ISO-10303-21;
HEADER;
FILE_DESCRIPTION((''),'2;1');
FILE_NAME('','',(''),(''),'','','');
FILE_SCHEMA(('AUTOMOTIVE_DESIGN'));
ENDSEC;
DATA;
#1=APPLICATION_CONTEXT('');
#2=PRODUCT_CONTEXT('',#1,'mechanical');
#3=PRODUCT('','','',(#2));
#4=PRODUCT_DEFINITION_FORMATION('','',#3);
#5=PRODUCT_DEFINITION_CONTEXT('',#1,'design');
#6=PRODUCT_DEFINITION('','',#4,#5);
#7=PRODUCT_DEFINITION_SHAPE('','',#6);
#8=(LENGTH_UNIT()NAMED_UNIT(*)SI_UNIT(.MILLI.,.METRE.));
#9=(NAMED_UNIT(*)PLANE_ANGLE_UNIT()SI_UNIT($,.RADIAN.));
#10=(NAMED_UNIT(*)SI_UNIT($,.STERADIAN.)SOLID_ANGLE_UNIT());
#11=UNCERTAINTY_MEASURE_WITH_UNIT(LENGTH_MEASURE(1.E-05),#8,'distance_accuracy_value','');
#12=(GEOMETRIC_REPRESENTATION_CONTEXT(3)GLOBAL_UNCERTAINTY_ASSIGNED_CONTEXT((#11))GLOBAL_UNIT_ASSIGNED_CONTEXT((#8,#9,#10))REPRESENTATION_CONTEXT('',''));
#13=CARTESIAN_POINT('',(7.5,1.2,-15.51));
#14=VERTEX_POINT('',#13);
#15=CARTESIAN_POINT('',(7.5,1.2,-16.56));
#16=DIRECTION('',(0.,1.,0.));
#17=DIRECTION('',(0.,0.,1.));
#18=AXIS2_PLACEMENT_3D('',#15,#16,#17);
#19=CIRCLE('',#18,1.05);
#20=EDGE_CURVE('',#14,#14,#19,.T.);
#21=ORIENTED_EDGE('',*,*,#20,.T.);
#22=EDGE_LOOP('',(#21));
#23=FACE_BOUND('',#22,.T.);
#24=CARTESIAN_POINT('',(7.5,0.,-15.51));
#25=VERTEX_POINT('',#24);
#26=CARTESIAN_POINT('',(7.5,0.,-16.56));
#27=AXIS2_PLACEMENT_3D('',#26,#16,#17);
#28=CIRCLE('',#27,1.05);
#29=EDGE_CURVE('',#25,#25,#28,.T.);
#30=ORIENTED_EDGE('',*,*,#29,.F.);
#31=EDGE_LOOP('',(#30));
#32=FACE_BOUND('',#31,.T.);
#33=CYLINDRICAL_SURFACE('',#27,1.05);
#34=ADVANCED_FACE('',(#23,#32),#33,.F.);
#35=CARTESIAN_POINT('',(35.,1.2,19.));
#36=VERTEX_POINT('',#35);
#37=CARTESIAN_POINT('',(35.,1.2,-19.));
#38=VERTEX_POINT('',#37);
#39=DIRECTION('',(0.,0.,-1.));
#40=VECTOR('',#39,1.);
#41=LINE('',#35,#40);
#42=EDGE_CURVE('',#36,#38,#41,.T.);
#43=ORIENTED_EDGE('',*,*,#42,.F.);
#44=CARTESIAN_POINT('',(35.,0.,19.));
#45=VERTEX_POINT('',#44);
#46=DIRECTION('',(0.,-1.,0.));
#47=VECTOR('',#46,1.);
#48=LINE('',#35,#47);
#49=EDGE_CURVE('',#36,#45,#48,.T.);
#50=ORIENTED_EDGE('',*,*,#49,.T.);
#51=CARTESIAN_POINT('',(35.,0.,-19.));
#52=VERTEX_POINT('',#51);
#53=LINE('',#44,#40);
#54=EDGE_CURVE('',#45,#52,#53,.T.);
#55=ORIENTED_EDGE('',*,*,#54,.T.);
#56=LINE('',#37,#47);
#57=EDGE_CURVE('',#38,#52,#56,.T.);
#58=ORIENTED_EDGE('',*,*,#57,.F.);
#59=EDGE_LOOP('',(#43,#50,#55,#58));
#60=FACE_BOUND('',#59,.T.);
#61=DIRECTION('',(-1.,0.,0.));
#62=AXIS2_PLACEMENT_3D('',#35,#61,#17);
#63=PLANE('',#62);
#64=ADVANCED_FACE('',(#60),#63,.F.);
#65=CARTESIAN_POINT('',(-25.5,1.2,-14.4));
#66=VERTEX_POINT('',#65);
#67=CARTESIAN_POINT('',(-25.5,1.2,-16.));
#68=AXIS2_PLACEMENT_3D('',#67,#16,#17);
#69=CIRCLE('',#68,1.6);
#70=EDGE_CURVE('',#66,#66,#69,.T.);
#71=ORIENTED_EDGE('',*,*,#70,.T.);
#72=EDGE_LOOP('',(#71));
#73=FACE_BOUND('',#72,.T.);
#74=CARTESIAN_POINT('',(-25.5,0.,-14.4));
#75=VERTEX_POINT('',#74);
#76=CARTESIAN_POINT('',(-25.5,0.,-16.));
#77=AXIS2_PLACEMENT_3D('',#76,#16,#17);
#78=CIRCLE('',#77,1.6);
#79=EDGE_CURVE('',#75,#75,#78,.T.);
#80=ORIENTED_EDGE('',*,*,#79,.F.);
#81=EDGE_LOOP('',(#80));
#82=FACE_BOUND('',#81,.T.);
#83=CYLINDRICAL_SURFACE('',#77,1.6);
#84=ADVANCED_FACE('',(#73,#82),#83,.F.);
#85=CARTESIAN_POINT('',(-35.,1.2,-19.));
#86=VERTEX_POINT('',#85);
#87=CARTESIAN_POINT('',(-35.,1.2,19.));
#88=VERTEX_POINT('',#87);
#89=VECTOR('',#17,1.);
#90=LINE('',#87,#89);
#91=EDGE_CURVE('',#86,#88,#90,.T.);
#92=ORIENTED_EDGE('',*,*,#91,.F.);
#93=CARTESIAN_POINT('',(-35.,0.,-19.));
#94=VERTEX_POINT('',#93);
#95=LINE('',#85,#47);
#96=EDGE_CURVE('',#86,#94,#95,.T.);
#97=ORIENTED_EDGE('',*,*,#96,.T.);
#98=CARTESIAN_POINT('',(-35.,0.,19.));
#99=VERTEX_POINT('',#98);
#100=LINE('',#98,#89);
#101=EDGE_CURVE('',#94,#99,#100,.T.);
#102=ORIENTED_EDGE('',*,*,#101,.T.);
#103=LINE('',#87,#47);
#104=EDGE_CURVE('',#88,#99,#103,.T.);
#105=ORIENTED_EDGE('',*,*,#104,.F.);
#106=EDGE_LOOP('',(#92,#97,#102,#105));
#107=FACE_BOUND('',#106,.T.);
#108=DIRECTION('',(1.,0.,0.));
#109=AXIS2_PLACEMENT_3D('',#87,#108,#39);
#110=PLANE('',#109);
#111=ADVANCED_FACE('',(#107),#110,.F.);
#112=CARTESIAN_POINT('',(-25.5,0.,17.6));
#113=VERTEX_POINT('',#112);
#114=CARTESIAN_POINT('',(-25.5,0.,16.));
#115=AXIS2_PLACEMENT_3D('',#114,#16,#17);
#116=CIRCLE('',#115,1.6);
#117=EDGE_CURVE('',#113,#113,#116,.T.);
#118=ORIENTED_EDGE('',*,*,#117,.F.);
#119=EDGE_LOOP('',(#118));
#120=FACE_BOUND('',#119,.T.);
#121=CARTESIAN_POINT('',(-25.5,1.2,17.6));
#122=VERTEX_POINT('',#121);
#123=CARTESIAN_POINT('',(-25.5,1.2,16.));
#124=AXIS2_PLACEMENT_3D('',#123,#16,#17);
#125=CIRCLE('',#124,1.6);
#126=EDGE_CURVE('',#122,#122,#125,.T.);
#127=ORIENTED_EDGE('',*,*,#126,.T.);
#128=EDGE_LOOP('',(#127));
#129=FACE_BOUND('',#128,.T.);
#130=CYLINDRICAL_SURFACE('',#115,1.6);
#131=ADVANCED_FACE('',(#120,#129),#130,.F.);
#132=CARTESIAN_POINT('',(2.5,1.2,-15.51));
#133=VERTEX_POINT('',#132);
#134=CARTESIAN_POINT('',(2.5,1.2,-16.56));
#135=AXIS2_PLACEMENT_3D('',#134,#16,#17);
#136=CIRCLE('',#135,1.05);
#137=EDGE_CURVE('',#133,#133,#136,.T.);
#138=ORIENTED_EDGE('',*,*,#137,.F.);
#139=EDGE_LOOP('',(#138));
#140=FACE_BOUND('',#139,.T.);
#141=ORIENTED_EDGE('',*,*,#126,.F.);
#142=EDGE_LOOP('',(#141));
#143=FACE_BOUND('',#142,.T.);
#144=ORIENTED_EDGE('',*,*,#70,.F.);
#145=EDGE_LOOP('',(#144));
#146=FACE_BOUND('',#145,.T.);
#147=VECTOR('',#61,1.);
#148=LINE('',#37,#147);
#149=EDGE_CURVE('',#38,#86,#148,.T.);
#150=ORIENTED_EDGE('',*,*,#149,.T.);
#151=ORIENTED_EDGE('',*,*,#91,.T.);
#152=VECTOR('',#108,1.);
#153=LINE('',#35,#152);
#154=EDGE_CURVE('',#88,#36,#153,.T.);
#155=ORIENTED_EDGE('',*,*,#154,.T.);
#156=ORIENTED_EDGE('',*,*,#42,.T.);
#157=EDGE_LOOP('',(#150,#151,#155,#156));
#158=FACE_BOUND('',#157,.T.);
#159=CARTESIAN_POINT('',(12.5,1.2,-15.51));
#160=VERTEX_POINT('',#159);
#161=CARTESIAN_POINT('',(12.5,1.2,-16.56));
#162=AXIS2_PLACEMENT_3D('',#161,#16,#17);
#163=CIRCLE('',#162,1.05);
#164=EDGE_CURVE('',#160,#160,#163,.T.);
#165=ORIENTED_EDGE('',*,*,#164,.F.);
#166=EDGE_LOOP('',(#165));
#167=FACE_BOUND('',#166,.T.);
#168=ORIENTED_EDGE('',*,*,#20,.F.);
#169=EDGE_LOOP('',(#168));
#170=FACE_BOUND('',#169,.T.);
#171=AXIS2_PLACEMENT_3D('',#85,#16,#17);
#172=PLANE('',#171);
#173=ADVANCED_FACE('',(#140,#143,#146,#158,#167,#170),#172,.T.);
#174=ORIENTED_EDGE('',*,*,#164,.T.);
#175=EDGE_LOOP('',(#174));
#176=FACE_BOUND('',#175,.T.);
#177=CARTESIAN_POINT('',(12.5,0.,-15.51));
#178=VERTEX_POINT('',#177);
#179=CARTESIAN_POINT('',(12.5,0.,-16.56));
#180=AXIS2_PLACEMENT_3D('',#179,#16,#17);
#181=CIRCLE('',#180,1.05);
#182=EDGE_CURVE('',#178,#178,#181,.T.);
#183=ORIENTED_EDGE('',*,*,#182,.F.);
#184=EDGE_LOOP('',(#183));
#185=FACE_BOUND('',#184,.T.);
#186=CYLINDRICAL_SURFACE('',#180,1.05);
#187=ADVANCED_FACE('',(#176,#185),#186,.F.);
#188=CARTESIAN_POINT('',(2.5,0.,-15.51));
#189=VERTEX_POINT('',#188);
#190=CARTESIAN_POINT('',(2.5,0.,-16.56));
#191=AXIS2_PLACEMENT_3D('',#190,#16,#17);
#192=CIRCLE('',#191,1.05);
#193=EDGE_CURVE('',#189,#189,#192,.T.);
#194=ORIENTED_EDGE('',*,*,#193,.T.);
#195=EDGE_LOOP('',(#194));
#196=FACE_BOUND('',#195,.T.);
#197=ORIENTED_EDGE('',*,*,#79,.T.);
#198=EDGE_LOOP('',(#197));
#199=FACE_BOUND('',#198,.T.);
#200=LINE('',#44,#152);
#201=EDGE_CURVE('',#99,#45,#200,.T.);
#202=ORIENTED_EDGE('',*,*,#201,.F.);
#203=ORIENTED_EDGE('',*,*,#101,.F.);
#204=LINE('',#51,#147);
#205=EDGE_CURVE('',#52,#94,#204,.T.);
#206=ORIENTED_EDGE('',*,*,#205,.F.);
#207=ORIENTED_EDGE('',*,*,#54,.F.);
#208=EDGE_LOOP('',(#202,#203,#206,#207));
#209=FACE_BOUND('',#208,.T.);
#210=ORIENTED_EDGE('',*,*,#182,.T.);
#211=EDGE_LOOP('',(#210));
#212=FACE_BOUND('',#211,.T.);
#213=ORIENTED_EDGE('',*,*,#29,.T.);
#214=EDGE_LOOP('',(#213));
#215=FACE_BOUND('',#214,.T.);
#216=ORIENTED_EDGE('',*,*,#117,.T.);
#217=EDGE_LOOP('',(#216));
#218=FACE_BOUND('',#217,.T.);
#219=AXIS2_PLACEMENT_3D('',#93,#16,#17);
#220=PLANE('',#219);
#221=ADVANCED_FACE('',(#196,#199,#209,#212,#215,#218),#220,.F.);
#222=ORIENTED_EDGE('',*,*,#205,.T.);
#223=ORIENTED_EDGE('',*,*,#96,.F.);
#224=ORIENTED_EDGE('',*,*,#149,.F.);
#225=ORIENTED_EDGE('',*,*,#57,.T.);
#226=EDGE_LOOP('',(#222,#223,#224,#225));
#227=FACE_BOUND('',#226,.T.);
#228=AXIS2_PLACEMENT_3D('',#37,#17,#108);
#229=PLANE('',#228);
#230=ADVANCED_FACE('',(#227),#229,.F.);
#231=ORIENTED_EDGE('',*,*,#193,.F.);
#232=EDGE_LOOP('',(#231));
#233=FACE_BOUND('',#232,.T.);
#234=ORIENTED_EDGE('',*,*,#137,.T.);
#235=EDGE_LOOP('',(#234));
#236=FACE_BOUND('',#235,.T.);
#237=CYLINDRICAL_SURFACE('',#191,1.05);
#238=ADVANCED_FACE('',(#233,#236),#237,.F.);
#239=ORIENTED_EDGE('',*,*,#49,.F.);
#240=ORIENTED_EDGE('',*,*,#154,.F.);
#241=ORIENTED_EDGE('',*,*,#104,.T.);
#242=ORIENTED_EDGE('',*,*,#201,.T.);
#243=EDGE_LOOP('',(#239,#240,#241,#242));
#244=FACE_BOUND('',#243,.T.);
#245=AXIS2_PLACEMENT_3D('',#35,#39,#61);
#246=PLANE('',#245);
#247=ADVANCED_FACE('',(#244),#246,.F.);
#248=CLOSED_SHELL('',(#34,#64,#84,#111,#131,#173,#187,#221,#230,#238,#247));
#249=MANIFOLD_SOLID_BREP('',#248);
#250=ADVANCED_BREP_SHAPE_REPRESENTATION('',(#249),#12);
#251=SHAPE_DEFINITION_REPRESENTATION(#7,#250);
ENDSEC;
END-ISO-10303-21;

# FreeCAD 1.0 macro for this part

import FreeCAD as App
import Part
import Sketcher
from FreeCAD import Vector
Q = App.Units.Quantity

doc = App.newDocument("Part")
params = doc.addObject("Spreadsheet::Sheet", "Params")
for row, (alias, value) in enumerate([
    ("sketch1_width", "70 mm"),
    ("sketch1_height", "38 mm"),
    ("pad1_length", "1.2 mm"),
    ("sketch2_diameter", "3.2 mm"),
    ("sketch2_diameter2", "2.1 mm"),
], start=1):
    params.set(f"A{row}", alias)
    params.set(f"B{row}", "=" + value)
    params.setAlias(f"B{row}", alias)

body = doc.addObject("PartDesign::Body", "Body")

# Sketch on XZ plane
sketch1 = doc.addObject("Sketcher::SketchObject", "Sketch")
body.addObject(sketch1)
sketch1.AttachmentSupport = (doc.XZ_Plane, [""])
sketch1.MapMode = "FlatFace"
sketch1.addGeometry([
    Part.LineSegment(Vector(-35, -19, 0), Vector(-35, 19, 0)),
    Part.LineSegment(Vector(-35, 19, 0), Vector(35, 19, 0)),
    Part.LineSegment(Vector(35, 19, 0), Vector(35, -19, 0)),
    Part.LineSegment(Vector(35, -19, 0), Vector(-35, -19, 0)),
], False)
sketch1.addConstraint([
    Sketcher.Constraint("Coincident", 0, 2, 1, 1),
    Sketcher.Constraint("Coincident", 1, 2, 2, 1),
    Sketcher.Constraint("Coincident", 2, 2, 3, 1),
    Sketcher.Constraint("Coincident", 3, 2, 0, 1),
    Sketcher.Constraint("Vertical", 0),
    Sketcher.Constraint("Horizontal", 1),
    Sketcher.Constraint("Vertical", 2),
    Sketcher.Constraint("Horizontal", 3),
    Sketcher.Constraint("Symmetric", 0, 2, 2, 2, -1, 1),
    Sketcher.Constraint("DistanceX", 1, 1, 1, 2, Q("70 mm")),
    Sketcher.Constraint("DistanceY", 0, 1, 0, 2, Q("38 mm")),
])
sketch1.setExpression("Constraints[9]", "Params.sketch1_width")
sketch1.setExpression("Constraints[10]", "Params.sketch1_height")
pad1 = doc.addObject("PartDesign::Pad", "Pad")
body.addObject(pad1)
pad1.Profile = sketch1
pad1.setExpression("Length", "Params.pad1_length")
pad1.Reversed = True

# Sketch on XZ plane
sketch2 = doc.addObject("Sketcher::SketchObject", "Sketch001")
body.addObject(sketch2)
sketch2.AttachmentSupport = (doc.XZ_Plane, [""])
sketch2.MapMode = "FlatFace"
sketch2.AttachmentOffset = App.Placement(Vector(0, 0, -1.2), App.Rotation())
sketch2.addGeometry([
    Part.Circle(Vector(-25.5, -16, 0), Vector(0, 0, 1), 1.6),  # 0
    Part.Circle(Vector(-25.5, 16, 0), Vector(0, 0, 1), 1.6),  # 1
    Part.Circle(Vector(2.5, -16.6, 0), Vector(0, 0, 1), 1.1),  # 2
    Part.Circle(Vector(7.5, -16.6, 0), Vector(0, 0, 1), 1.1),  # 3
    Part.Circle(Vector(12.5, -16.6, 0), Vector(0, 0, 1), 1.1),  # 4
], False)
sketch2.addConstraint([
    Sketcher.Constraint("Equal", 0, 1),
    Sketcher.Constraint("Equal", 2, 3),
    Sketcher.Constraint("Equal", 3, 4),
    Sketcher.Constraint("Symmetric", 0, 3, 1, 3, -1),
    Sketcher.Constraint("Horizontal", 2, 3, 3, 3),
    Sketcher.Constraint("Horizontal", 3, 3, 4, 3),
    Sketcher.Constraint("Diameter", 0, Q("3.2 mm")),
    Sketcher.Constraint("Diameter", 2, Q("2.1 mm")),
    Sketcher.Constraint("DistanceY", 0, 3, -1, 1, Q("16 mm")),
    Sketcher.Constraint("DistanceX", 0, 3, 2, 3, Q("28 mm")),
    Sketcher.Constraint("DistanceX", 2, 3, 3, 3, Q("5 mm")),
    Sketcher.Constraint("DistanceX", 3, 3, 4, 3, Q("5 mm")),
    Sketcher.Constraint("DistanceX", 0, 3, -1, 1, Q("25.5 mm")),
    Sketcher.Constraint("DistanceY", 2, 3, -1, 1, Q("16.56 mm")),
])
sketch2.setExpression("Constraints[6]", "Params.sketch2_diameter")
sketch2.setExpression("Constraints[7]", "Params.sketch2_diameter2")
pocket1 = doc.addObject("PartDesign::Pocket", "Pocket")
body.addObject(pocket1)
pocket1.Profile = sketch2
pocket1.Type = "ThroughAll"
pocket1.Reversed = True

doc.recompute()
